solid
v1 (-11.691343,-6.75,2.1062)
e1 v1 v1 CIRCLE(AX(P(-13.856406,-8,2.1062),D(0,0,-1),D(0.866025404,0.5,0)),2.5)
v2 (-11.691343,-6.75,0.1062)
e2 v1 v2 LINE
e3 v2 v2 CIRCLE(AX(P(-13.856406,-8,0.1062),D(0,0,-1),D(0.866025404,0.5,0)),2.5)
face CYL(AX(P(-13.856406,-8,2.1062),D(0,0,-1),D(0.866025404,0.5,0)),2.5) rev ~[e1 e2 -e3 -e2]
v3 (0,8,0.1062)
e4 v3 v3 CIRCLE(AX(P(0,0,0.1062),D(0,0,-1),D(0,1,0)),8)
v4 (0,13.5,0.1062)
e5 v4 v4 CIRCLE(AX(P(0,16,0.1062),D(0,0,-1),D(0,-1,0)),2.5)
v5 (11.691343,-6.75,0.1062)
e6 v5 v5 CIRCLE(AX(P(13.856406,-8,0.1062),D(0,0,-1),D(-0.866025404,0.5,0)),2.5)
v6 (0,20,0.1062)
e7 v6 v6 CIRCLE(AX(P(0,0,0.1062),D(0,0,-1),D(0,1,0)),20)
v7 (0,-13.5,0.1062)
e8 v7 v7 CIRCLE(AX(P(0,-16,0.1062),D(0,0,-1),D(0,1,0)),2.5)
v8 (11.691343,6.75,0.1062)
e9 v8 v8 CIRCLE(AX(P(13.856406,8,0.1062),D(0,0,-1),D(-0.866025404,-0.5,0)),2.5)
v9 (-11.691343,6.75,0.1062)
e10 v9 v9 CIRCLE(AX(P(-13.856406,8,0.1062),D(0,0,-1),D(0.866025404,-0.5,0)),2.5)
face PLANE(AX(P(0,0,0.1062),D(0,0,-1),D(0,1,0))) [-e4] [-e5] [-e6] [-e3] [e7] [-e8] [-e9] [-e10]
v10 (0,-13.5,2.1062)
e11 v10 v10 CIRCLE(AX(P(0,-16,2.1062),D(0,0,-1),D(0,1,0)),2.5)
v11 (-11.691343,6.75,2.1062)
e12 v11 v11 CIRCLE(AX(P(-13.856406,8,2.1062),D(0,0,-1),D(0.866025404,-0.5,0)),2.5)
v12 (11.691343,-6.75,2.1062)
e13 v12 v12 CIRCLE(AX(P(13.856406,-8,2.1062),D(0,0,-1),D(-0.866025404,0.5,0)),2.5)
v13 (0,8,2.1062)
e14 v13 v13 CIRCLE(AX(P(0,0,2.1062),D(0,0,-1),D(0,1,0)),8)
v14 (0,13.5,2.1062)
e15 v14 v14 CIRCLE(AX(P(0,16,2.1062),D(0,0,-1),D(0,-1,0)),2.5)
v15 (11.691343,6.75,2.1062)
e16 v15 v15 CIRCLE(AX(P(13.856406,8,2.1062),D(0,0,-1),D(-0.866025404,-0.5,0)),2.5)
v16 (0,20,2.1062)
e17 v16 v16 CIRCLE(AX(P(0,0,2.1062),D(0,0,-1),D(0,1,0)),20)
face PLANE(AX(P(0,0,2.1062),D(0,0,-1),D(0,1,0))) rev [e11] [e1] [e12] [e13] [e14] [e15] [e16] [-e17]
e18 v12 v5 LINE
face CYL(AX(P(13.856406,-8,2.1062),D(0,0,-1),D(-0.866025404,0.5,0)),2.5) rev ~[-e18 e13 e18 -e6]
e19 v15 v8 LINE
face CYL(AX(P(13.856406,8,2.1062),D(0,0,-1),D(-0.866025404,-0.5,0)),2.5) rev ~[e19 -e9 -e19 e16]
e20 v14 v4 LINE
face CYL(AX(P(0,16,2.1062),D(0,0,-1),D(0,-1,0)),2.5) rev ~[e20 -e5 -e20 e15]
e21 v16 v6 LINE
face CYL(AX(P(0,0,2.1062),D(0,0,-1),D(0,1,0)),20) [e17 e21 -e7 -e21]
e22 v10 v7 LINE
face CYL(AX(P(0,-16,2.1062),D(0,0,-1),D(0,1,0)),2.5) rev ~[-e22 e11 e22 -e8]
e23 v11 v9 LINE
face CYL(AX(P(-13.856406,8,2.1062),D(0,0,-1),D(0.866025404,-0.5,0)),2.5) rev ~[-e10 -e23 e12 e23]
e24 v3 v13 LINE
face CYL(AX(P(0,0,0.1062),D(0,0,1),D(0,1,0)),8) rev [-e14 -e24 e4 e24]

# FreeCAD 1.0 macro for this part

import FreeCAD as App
import Part
import Sketcher
from FreeCAD import Vector


def add_polygon(sketch, points):
    """Adds a closed chain of lines whose ends are joined by coincident constraints."""
    first, n = sketch.GeometryCount, len(points)
    for a, b in zip(points, points[1:] + points[:1]):
        sketch.addGeometry(Part.LineSegment(App.Vector(*a, 0), App.Vector(*b, 0)), False)
    for i in range(n):
        sketch.addConstraint(Sketcher.Constraint("Coincident", first + i, 2, first + (i + 1) % n, 1))

doc = App.newDocument("Part")
params = doc.addObject("Spreadsheet::Sheet", "Params")
for row, (alias, value) in enumerate([
    ("sketch1_height", "2 mm"),
    ("sketch1_width", "12 mm"),
    ("revolution_angle", "360 deg"),
    ("sketch2_diameter", "5 mm"),
    ("hole_diameter", "5 mm"),
], start=1):
    params.set(f"A{row}", alias)
    params.set(f"B{row}", "=" + value)
    params.setAlias(f"B{row}", alias)

body = doc.addObject("PartDesign::Body", "Body")

# Sketch on YZ plane
sketch1 = body.newObject("Sketcher::SketchObject", "Sketch")
sketch1.AttachmentSupport = (doc.getObject("YZ_Plane"), [""])
sketch1.MapMode = "FlatFace"
add_polygon(sketch1, [(20, 2.1062), (8, 2.1062), (8, 0.1062), (20, 0.1062)])  # lines 0-3
sketch1.addConstraint([
    Sketcher.Constraint("Horizontal", 0),
    Sketcher.Constraint("Vertical", 1),
    Sketcher.Constraint("Horizontal", 2),
    Sketcher.Constraint("Vertical", 3),
    Sketcher.Constraint("DistanceY", 1, 2, 1, 1, 2.0),
    Sketcher.Constraint("DistanceX", 0, 2, 0, 1, 12.0),
    Sketcher.Constraint("DistanceX", -1, 1, 0, 2, 8.0),
    Sketcher.Constraint("DistanceY", -1, 1, 0, 2, 2.1062),
])
sketch1.setExpression("Constraints[8]", "Params.sketch1_height")
sketch1.setExpression("Constraints[9]", "Params.sketch1_width")
revolution = body.newObject("PartDesign::Revolution", "Revolution")
revolution.Profile = sketch1
revolution.ReferenceAxis = (sketch1, ["V_Axis"])
revolution.setExpression("Angle", "Params.revolution_angle")

# Sketch on XY plane
sketch2 = body.newObject("Sketcher::SketchObject", "Sketch001")
sketch2.AttachmentSupport = (doc.getObject("XY_Plane"), [""])
sketch2.MapMode = "FlatFace"
sketch2.AttachmentOffset = App.Placement(Vector(0, 0, 2.1062), App.Rotation())
sketch2.addGeometry(Part.Circle(Vector(0, 16, 0), Vector(0, 0, 1), 2.5), False)
sketch2.addConstraint([
    Sketcher.Constraint("PointOnObject", 0, 3, -2),
    Sketcher.Constraint("Diameter", 0, 5.0),
    Sketcher.Constraint("DistanceY", -1, 1, 0, 3, 16.0),
])
sketch2.setExpression("Constraints[1]", "Params.sketch2_diameter")
doc.recompute()
hole = body.newObject("PartDesign::Hole", "Hole")
hole.Profile = sketch2
hole.ThreadType = "None"
hole.setExpression("Diameter", "Params.hole_diameter")
hole.DepthType = "ThroughAll"
doc.recompute()

polarpattern = body.newObject("PartDesign::PolarPattern", "PolarPattern")
polarpattern.Originals = [hole]
polarpattern.Axis = (doc.getObject("Z_Axis"), [""])
polarpattern.Angle = 360
polarpattern.Occurrences = 6
body.Tip = polarpattern

doc.recompute()
